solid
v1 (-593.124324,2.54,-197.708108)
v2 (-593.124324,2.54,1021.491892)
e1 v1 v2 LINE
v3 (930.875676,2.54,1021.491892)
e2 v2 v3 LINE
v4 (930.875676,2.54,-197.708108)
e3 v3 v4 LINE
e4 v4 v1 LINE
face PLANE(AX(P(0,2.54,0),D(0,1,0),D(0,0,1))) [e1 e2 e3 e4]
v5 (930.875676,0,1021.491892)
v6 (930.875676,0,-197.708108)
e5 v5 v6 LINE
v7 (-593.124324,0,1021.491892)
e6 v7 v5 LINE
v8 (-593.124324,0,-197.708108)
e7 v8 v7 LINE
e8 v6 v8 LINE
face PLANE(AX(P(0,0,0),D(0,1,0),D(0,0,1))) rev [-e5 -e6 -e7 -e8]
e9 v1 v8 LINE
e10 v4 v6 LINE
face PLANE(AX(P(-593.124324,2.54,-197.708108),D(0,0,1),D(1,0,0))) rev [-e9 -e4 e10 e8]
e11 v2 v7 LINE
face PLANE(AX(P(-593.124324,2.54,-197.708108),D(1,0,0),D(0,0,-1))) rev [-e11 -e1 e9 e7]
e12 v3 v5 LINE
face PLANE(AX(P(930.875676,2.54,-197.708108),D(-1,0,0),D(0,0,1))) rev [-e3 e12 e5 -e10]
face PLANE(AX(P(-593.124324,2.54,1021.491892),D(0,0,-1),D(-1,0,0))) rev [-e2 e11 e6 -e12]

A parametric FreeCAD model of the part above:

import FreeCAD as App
import Part
import Sketcher
Q = App.Units.Quantity

doc = App.newDocument("Part")
params = doc.addObject("Spreadsheet::Sheet", "Params")
for row, (alias, value) in enumerate([
    ("sketch1_width", "60 in"),
    ("sketch1_height", "48 in"),
    ("pad1_length", "0.1 in"),
], start=1):
    params.set(f"A{row}", alias)
    params.set(f"B{row}", "=" + value)
    params.setAlias(f"B{row}", alias)

body = doc.addObject("PartDesign::Body", "Body")

# Sketch on XZ plane
sketch1 = doc.addObject("Sketcher::SketchObject", "Sketch")
body.addObject(sketch1)
sketch1.AttachmentSupport = (doc.XZ_Plane, [""])
sketch1.MapMode = "FlatFace"
sketch1.addGeometry(Part.LineSegment(App.Vector(-593.124324, -197.708108, 0), App.Vector(-593.124324, 1021.491892, 0)), False)
sketch1.addGeometry(Part.LineSegment(App.Vector(-593.124324, 1021.491892, 0), App.Vector(930.875676, 1021.491892, 0)), False)
sketch1.addGeometry(Part.LineSegment(App.Vector(930.875676, 1021.491892, 0), App.Vector(930.875676, -197.708108, 0)), False)
sketch1.addGeometry(Part.LineSegment(App.Vector(930.875676, -197.708108, 0), App.Vector(-593.124324, -197.708108, 0)), False)
sketch1.addConstraint(Sketcher.Constraint("Coincident", 0, 2, 1, 1))
sketch1.addConstraint(Sketcher.Constraint("Coincident", 1, 2, 2, 1))
sketch1.addConstraint(Sketcher.Constraint("Coincident", 2, 2, 3, 1))
sketch1.addConstraint(Sketcher.Constraint("Coincident", 3, 2, 0, 1))
sketch1.addConstraint(Sketcher.Constraint("Vertical", 0))
sketch1.addConstraint(Sketcher.Constraint("Horizontal", 1))
sketch1.addConstraint(Sketcher.Constraint("Vertical", 2))
sketch1.addConstraint(Sketcher.Constraint("Horizontal", 3))
sketch1.addConstraint(Sketcher.Constraint("DistanceX", 1, 1, 1, 2, Q("60 in")))
sketch1.addConstraint(Sketcher.Constraint("DistanceY", 0, 1, 0, 2, Q("48 in")))
sketch1.addConstraint(Sketcher.Constraint("DistanceY", -1, 1, 0, 2, Q("1021.491892 mm")))
sketch1.addConstraint(Sketcher.Constraint("DistanceX", 0, 2, -1, 1, Q("593.124324 mm")))
sketch1.setExpression("Constraints[8]", "Params.sketch1_width")
sketch1.setExpression("Constraints[9]", "Params.sketch1_height")
pad1 = doc.addObject("PartDesign::Pad", "Pad")
body.addObject(pad1)
pad1.Profile = sketch1
pad1.setExpression("Length", "Params.pad1_length")
pad1.Reversed = True

doc.recompute()
